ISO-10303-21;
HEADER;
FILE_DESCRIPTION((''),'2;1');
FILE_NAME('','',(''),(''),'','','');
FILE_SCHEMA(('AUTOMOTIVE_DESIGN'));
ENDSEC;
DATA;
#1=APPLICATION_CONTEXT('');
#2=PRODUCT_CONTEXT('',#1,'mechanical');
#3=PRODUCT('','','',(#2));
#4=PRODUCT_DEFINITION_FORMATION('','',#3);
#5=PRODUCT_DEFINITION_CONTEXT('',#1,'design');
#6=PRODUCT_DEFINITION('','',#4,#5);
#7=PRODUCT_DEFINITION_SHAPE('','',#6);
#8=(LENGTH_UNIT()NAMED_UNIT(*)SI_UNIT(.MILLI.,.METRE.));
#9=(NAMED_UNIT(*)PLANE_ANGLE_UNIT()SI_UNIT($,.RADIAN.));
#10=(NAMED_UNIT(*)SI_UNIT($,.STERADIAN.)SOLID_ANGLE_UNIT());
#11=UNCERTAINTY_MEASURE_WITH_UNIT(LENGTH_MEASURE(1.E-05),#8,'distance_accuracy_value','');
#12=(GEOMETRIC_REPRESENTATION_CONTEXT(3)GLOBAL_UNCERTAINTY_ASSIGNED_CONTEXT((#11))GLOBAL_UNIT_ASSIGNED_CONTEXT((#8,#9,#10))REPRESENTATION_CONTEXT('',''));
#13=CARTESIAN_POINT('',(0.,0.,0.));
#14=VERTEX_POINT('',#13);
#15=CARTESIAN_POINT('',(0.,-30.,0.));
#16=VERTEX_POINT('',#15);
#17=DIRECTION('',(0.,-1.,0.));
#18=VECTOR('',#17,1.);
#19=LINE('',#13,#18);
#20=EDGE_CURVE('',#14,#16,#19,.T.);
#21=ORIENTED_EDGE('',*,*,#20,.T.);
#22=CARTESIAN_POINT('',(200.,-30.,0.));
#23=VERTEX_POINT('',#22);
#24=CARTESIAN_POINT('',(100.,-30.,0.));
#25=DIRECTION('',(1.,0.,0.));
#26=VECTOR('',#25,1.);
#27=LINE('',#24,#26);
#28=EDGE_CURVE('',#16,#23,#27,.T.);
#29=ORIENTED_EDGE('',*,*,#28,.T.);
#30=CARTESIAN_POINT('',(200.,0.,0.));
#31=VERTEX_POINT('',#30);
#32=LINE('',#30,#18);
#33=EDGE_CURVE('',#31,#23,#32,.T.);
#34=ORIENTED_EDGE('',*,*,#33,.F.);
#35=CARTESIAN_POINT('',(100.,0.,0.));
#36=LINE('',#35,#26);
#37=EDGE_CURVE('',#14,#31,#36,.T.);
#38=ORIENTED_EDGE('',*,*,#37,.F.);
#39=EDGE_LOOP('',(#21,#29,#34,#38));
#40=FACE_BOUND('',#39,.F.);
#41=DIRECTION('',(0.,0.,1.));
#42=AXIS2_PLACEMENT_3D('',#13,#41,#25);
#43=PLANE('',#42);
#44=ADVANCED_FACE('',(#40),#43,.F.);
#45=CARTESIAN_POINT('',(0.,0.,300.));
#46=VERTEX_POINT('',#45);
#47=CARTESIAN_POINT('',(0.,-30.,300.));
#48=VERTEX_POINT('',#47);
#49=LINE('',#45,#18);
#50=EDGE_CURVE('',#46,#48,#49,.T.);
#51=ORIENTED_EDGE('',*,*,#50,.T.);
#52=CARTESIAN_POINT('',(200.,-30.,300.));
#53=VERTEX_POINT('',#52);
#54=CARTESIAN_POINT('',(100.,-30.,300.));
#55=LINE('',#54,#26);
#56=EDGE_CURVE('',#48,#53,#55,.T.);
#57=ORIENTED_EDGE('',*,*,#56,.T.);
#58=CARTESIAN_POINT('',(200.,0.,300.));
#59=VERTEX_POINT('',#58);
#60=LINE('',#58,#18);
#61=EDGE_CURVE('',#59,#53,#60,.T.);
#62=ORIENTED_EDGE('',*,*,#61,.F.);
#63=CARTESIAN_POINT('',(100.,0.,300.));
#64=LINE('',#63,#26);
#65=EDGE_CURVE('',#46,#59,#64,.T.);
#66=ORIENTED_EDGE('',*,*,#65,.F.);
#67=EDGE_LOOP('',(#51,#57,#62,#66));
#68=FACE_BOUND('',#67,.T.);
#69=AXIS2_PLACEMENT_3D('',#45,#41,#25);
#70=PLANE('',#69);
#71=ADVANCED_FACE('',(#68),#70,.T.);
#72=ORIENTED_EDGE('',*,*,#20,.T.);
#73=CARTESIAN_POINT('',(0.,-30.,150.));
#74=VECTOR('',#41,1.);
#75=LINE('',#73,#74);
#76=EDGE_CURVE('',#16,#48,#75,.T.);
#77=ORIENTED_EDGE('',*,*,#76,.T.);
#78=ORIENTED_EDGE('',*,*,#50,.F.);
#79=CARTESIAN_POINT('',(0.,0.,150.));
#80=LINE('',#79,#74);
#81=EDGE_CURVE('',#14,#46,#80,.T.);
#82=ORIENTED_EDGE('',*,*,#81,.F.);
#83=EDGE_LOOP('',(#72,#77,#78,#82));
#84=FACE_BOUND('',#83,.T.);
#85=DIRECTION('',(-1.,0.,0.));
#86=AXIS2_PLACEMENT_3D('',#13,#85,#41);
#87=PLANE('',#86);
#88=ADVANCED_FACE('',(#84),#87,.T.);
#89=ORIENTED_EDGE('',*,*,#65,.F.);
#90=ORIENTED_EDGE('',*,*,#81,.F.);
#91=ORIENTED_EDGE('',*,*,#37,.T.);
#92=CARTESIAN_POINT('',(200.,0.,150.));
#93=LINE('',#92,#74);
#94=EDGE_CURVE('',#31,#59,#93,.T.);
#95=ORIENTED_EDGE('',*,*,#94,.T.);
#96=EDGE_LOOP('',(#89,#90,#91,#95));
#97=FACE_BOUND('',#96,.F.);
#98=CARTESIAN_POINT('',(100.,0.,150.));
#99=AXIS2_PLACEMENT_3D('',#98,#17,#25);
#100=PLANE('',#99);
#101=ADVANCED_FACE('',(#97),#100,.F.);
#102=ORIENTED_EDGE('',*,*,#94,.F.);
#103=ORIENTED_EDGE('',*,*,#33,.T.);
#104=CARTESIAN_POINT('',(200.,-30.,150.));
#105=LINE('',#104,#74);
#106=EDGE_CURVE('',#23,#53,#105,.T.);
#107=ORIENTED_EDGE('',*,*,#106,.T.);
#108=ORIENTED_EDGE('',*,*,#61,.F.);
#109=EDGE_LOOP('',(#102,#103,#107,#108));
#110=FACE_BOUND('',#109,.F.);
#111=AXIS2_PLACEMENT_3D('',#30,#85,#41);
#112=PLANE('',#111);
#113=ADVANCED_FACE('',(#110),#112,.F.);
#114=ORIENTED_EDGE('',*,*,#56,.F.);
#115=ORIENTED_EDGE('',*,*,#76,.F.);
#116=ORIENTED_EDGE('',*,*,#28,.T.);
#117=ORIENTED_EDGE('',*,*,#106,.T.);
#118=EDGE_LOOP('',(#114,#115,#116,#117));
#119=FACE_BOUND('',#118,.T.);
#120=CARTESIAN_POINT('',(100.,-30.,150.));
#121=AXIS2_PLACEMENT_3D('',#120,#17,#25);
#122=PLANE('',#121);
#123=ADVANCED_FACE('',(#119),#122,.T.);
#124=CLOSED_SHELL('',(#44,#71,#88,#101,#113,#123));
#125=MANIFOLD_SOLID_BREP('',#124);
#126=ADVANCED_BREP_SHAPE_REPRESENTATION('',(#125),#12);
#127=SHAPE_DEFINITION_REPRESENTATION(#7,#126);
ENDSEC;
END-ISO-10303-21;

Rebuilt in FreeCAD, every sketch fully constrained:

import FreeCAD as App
import Part
import Sketcher
from FreeCAD import Vector
Q = App.Units.Quantity


def add_polygon(sketch, points):
    """Adds a closed chain of lines whose ends are joined by coincident constraints."""
    first, n = sketch.GeometryCount, len(points)
    for a, b in zip(points, points[1:] + points[:1]):
        sketch.addGeometry(Part.LineSegment(App.Vector(*a, 0), App.Vector(*b, 0)), False)
    for i in range(n):
        sketch.addConstraint(Sketcher.Constraint("Coincident", first + i, 2, first + (i + 1) % n, 1))

doc = App.newDocument("Part")
body = doc.addObject("PartDesign::Body", "Body")

sketch1 = body.newObject("Sketcher::SketchObject", "Sketch")
sketch1.AttachmentSupport = (doc.getObject("XZ_Plane"), [""])
sketch1.MapMode = "FlatFace"
add_polygon(sketch1, [(0, 300), (0, 0), (200, 0), (200, 300)])
sketch1.addConstraint(Sketcher.Constraint("Vertical", 0))
sketch1.addConstraint(Sketcher.Constraint("Horizontal", 1))
sketch1.addConstraint(Sketcher.Constraint("Vertical", 2))
sketch1.addConstraint(Sketcher.Constraint("Horizontal", 3))
sketch1.addConstraint(Sketcher.Constraint("Coincident", 0, 2, -1, 1))
sketch1.addConstraint(Sketcher.Constraint("DistanceX", 1, 1, 1, 2, Q("200 mm")))
sketch1.addConstraint(Sketcher.Constraint("DistanceY", 0, 2, 0, 1, Q("300 mm")))
pad1 = body.newObject("PartDesign::Pad", "Pad")
pad1.Profile = sketch1
pad1.Length = 30

doc.recompute()
